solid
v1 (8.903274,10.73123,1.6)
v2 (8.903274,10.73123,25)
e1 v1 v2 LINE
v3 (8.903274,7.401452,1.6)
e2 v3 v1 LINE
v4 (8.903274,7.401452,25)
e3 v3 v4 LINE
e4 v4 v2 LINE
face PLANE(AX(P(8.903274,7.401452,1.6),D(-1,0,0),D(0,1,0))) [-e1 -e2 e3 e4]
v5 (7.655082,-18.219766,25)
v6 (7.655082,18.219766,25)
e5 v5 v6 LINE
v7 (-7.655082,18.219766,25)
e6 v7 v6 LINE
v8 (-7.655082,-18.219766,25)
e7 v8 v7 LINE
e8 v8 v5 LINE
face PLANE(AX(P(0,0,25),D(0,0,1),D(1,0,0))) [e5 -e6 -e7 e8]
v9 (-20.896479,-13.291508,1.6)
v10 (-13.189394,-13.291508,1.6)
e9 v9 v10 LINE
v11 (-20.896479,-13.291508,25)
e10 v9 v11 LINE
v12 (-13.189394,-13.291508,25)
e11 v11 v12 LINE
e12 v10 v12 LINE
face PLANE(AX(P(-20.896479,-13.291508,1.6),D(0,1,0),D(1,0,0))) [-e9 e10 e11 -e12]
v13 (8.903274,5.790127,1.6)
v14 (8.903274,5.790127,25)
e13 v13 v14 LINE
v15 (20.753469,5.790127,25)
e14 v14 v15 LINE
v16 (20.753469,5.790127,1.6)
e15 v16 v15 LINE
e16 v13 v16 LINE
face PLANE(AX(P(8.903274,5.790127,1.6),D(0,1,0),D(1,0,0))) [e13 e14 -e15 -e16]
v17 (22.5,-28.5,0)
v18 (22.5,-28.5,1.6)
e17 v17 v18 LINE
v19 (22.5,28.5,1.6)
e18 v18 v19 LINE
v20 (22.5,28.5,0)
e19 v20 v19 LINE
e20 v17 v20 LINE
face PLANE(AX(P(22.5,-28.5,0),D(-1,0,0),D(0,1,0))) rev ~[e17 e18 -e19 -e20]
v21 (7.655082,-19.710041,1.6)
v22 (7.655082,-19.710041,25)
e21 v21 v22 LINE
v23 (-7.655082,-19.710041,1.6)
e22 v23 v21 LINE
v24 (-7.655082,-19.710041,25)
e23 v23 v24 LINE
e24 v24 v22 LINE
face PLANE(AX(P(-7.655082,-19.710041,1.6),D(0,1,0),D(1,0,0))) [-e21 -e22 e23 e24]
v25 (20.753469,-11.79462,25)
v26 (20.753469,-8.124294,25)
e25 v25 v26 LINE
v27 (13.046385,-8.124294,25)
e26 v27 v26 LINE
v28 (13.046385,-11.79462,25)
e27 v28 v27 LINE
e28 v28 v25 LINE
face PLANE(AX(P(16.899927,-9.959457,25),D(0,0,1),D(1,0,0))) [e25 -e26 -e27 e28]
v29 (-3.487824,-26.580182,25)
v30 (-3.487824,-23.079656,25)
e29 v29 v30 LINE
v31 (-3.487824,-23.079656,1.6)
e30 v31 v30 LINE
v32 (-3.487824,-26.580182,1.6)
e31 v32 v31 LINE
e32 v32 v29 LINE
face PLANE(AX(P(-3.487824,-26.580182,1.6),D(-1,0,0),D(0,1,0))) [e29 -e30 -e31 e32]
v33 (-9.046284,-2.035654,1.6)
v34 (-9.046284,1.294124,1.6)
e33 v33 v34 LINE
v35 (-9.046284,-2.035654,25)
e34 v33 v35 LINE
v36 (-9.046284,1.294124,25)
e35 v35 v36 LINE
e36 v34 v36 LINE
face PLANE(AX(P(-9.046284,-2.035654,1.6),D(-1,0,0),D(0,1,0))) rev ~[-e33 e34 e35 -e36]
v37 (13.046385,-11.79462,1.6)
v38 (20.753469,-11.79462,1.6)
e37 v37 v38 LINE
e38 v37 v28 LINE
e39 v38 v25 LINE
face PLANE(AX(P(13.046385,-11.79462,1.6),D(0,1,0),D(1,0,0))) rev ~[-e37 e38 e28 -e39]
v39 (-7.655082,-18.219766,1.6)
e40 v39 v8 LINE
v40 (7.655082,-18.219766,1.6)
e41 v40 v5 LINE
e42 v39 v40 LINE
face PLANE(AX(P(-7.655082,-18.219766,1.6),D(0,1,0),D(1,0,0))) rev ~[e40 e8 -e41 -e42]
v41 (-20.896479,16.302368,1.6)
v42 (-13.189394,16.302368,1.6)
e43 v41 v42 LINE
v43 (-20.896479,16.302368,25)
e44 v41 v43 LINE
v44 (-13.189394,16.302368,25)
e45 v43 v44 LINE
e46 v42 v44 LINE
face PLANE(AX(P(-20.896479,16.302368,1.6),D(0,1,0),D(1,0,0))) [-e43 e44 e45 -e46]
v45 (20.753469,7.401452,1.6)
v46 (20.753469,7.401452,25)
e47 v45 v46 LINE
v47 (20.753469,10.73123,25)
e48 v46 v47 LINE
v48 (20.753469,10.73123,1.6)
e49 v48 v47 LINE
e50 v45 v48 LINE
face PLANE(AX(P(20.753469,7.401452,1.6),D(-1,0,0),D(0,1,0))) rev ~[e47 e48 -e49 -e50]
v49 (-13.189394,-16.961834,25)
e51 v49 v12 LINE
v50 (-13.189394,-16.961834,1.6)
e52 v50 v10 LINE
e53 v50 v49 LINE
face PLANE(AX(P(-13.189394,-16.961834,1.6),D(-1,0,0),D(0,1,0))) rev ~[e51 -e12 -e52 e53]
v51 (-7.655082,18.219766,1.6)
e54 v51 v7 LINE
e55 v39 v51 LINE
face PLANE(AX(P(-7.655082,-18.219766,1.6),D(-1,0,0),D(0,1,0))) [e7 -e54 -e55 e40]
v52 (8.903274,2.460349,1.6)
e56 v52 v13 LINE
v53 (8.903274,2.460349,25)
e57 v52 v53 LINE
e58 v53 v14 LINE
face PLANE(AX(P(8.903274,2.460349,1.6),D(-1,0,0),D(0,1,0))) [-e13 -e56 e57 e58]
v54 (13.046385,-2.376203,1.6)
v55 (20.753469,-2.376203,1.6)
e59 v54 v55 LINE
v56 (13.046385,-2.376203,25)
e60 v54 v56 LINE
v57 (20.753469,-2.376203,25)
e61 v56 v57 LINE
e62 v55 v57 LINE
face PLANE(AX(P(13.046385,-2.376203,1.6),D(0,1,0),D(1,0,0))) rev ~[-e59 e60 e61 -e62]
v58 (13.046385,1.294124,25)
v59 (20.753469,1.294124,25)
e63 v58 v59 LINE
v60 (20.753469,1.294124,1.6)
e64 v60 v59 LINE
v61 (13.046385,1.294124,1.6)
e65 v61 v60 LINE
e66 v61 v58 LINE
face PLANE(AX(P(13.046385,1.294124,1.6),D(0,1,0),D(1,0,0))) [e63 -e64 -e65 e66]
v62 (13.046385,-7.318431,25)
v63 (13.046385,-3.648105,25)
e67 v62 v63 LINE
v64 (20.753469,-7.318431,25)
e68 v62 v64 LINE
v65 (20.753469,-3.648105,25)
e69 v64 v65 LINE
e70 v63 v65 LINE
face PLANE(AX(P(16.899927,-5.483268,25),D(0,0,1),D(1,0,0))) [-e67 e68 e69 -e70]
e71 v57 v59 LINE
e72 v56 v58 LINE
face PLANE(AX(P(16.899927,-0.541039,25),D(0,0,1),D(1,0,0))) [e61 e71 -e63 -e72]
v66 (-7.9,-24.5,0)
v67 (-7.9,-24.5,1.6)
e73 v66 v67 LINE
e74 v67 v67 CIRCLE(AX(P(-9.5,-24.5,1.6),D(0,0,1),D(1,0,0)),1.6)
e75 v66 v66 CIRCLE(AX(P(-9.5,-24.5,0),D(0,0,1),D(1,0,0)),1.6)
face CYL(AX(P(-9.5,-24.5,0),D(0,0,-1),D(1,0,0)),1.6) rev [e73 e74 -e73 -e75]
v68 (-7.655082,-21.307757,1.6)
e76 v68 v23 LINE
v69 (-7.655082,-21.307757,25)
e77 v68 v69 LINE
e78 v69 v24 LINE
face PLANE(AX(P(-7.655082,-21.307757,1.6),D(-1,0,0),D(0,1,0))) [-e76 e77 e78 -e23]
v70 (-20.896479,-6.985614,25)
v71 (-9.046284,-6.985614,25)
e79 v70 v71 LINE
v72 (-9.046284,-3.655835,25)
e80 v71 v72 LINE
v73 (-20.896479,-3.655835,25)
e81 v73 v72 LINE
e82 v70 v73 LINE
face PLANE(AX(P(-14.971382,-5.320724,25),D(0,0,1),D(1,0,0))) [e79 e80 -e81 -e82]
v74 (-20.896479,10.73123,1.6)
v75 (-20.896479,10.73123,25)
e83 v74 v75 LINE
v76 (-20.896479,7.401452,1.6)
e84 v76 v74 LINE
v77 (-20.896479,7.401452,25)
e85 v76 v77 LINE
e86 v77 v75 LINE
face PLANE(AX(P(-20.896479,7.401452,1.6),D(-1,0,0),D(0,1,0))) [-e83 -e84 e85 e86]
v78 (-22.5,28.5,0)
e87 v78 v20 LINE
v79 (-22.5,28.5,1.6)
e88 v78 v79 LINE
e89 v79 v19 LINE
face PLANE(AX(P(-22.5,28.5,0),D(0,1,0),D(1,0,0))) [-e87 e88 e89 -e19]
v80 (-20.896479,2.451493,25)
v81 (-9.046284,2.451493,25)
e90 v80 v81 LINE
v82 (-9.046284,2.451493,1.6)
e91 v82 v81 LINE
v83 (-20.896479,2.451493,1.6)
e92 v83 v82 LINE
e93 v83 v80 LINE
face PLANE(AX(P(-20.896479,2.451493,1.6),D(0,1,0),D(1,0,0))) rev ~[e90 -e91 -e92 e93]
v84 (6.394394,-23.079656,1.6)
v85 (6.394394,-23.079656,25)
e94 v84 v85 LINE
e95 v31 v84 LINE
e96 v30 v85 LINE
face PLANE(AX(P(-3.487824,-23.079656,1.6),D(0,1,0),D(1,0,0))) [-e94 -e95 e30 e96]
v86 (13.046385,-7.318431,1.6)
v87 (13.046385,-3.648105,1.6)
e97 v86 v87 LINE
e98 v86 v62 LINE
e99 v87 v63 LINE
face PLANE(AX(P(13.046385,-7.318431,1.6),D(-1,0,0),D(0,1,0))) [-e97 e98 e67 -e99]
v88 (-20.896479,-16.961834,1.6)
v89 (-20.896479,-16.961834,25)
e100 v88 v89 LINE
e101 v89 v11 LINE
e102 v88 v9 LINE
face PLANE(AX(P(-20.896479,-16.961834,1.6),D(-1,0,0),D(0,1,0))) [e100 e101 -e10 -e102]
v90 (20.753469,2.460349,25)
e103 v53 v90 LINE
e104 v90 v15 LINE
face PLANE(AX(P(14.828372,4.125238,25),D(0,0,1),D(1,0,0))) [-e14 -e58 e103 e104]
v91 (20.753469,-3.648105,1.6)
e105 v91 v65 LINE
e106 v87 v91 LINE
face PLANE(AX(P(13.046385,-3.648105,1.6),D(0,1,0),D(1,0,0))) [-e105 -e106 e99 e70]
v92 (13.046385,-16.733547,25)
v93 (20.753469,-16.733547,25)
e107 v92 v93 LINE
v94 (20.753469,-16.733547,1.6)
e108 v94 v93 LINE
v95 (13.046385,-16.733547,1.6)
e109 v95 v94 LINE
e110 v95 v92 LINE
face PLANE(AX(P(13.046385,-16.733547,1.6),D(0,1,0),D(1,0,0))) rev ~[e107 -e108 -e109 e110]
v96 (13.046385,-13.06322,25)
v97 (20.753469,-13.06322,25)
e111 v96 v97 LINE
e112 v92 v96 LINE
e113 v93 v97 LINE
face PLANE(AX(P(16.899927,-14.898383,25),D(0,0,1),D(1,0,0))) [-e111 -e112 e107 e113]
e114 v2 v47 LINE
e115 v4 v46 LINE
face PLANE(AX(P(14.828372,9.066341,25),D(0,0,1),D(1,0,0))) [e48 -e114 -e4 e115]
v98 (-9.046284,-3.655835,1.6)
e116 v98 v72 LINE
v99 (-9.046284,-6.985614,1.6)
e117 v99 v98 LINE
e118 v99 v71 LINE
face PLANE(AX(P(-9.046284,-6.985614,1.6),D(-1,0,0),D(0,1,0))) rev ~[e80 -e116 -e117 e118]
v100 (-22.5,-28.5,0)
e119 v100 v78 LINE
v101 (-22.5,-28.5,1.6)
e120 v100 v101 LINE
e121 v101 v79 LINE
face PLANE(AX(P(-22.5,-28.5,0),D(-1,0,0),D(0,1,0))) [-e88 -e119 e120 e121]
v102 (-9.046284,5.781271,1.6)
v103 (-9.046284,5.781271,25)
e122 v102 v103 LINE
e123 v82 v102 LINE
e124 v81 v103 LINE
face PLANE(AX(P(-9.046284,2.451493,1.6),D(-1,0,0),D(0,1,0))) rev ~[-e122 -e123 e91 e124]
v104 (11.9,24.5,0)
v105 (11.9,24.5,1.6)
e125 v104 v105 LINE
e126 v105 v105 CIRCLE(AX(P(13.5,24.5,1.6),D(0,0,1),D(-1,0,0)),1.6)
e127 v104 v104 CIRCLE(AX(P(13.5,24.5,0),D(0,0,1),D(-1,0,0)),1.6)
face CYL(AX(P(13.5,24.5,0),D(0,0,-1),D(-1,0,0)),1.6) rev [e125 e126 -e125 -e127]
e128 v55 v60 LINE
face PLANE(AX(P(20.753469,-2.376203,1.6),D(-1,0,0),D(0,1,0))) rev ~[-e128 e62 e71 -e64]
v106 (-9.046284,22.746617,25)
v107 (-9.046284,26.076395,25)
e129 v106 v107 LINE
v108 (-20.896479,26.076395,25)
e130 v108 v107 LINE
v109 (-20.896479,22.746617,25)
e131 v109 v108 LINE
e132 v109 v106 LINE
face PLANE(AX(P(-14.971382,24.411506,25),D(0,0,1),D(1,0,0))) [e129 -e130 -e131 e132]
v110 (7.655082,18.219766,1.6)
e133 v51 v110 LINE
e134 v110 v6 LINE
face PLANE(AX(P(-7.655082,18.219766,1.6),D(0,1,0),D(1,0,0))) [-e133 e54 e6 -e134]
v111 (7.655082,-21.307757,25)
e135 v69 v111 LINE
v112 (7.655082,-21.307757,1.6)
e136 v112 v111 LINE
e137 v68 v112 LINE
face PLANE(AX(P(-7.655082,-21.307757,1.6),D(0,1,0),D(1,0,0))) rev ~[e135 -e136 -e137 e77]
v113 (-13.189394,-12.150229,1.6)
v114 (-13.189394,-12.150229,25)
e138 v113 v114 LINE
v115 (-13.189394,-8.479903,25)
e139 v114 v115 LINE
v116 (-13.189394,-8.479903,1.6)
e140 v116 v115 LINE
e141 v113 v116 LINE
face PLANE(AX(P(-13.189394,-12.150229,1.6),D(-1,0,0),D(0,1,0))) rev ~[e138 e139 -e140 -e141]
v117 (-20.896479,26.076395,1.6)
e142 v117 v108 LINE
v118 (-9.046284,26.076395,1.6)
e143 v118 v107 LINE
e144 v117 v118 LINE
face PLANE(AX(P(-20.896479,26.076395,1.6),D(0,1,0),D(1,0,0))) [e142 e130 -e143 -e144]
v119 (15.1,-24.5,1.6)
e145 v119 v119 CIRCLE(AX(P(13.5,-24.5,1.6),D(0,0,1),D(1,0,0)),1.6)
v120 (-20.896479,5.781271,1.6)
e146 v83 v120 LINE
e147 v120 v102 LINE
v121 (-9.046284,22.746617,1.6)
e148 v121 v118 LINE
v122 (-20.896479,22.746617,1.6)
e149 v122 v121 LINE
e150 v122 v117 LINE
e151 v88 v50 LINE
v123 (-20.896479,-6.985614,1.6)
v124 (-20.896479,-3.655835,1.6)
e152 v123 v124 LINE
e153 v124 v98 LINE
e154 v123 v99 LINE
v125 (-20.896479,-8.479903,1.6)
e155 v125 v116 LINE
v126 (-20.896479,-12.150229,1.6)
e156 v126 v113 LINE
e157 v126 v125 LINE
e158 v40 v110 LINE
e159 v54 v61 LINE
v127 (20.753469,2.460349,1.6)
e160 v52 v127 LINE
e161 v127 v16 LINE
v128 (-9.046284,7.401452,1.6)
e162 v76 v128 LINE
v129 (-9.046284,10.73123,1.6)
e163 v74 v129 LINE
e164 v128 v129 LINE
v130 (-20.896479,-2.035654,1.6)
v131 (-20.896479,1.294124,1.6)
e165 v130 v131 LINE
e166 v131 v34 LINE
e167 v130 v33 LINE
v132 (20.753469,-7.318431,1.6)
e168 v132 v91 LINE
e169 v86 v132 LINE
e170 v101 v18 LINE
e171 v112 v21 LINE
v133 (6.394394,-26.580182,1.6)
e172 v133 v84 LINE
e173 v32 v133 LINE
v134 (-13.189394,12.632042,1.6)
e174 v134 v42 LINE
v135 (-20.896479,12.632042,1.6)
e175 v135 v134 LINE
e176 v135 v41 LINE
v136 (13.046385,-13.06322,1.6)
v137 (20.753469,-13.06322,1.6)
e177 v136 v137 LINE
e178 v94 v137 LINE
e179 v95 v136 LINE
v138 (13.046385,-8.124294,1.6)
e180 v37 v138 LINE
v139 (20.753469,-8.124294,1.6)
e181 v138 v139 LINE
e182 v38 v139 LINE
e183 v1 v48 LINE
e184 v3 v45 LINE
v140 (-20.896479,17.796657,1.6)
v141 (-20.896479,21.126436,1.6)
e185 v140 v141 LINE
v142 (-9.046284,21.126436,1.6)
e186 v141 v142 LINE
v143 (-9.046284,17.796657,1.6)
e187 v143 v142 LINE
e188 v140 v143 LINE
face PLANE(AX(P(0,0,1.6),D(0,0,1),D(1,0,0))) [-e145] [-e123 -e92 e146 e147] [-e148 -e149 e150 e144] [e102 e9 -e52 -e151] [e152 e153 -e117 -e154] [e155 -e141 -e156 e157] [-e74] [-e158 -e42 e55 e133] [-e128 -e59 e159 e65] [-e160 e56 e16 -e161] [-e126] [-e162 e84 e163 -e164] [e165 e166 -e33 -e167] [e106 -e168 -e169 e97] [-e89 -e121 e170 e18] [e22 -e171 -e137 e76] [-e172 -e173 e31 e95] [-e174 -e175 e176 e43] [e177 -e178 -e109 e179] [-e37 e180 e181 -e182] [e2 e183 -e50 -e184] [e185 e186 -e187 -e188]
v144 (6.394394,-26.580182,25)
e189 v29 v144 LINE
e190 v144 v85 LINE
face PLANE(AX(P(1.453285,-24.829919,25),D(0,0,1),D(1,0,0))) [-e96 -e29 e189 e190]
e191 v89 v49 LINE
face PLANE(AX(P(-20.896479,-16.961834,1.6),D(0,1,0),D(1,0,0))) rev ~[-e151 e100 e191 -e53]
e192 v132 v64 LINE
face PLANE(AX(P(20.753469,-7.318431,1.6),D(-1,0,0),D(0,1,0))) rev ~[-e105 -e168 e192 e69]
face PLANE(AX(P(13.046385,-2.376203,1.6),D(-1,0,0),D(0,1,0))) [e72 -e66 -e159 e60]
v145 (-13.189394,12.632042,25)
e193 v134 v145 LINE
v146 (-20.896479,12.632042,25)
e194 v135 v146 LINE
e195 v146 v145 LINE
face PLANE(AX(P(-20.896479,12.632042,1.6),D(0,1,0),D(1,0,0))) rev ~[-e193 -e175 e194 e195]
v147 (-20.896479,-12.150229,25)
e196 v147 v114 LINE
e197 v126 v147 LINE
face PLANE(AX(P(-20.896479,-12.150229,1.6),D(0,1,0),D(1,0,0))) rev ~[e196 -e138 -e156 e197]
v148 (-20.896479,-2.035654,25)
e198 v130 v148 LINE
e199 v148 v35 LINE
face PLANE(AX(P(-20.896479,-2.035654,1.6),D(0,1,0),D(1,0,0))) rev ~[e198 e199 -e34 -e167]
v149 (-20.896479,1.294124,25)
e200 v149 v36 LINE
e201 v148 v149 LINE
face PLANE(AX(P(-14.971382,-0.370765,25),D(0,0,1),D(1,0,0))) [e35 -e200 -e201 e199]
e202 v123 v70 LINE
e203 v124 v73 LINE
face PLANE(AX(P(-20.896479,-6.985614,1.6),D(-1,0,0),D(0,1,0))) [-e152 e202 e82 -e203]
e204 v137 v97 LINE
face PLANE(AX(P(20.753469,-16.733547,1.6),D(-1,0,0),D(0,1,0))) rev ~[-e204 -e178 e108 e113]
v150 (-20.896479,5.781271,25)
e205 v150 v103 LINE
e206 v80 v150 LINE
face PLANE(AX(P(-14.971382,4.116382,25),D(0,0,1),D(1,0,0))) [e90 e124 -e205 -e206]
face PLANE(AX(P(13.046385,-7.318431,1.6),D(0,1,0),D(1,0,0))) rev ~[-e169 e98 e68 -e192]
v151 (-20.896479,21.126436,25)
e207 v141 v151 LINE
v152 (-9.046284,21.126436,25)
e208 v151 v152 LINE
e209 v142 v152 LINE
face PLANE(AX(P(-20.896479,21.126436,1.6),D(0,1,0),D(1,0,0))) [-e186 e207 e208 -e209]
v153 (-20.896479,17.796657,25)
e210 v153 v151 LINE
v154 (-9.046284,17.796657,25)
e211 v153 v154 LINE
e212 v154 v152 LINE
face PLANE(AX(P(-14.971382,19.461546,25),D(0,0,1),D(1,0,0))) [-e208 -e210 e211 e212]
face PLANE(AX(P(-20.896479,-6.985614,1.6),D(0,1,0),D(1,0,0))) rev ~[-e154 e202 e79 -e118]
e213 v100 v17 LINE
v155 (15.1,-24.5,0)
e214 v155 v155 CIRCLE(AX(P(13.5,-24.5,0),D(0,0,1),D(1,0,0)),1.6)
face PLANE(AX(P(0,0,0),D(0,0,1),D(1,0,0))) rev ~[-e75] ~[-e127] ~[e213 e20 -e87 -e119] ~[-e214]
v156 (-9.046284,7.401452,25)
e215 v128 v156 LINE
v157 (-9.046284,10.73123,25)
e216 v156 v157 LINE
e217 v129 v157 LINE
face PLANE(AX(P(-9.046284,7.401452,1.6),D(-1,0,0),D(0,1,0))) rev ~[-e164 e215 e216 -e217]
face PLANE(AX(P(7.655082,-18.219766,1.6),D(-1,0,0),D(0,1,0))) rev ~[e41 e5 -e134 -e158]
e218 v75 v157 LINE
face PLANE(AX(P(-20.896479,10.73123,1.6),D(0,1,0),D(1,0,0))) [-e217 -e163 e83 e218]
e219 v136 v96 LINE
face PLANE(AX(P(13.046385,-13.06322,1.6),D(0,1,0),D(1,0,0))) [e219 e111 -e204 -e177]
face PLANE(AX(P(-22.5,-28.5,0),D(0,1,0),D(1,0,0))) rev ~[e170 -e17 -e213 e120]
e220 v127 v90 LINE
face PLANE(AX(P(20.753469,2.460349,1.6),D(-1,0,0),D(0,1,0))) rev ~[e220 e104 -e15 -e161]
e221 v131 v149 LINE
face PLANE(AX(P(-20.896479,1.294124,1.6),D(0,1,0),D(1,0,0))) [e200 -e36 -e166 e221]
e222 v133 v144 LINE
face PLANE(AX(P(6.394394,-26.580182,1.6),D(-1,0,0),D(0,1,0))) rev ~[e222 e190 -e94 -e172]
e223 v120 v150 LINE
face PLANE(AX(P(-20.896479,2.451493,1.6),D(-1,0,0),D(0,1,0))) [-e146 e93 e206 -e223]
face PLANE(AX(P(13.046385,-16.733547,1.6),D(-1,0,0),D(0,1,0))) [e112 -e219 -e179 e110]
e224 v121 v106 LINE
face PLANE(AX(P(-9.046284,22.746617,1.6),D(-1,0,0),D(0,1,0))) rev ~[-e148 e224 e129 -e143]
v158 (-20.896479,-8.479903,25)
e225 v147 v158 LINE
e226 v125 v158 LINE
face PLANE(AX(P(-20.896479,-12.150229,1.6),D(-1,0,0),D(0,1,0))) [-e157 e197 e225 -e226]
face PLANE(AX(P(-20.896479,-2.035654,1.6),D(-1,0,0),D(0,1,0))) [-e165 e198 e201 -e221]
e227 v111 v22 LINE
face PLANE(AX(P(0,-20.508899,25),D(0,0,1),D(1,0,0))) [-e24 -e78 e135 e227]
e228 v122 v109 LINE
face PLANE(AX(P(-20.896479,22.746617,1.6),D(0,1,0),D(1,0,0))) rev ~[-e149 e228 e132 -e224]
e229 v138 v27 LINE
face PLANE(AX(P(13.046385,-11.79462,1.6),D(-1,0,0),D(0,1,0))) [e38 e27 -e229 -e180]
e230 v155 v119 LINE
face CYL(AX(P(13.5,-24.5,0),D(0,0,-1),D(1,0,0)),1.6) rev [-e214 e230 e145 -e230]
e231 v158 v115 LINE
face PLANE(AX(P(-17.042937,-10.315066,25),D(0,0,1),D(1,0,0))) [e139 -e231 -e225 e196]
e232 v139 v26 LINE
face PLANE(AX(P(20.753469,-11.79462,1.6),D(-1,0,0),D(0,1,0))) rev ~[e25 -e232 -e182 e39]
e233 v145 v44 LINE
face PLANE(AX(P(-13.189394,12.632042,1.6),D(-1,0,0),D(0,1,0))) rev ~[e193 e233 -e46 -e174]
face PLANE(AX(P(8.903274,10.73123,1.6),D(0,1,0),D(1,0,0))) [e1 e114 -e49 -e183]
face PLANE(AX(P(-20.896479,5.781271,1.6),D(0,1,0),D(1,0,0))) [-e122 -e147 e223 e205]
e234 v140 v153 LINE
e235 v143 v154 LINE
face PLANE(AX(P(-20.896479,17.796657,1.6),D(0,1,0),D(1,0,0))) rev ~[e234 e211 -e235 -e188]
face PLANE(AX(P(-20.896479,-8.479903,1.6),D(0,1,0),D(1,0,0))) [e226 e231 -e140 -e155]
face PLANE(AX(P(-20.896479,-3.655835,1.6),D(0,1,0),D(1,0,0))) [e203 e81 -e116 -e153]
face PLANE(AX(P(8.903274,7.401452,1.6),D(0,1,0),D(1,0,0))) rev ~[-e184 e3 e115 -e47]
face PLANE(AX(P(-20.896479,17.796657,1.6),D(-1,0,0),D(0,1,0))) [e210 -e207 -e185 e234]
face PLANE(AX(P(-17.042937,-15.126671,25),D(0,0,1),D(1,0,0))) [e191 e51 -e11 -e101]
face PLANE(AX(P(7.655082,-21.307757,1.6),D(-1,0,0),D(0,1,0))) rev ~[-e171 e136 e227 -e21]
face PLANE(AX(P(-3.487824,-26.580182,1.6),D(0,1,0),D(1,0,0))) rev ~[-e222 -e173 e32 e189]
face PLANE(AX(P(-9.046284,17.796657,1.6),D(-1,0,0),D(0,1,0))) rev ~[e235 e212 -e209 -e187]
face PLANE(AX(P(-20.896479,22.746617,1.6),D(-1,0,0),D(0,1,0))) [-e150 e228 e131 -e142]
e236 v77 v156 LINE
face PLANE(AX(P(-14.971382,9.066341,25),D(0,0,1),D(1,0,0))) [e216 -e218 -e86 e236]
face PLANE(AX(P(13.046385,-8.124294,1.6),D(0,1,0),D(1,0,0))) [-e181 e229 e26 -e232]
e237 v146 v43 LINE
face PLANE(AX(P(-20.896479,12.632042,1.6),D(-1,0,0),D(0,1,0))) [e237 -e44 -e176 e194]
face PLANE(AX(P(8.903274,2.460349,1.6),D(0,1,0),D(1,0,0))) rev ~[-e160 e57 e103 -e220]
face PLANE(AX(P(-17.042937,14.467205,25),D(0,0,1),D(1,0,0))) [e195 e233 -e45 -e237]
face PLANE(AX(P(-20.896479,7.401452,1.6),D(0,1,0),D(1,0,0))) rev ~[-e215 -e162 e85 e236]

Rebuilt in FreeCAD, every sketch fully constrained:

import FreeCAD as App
import Part
import Sketcher
from FreeCAD import Vector

doc = App.newDocument("Part")
params = doc.addObject("Spreadsheet::Sheet", "Params")
for row, (alias, value) in enumerate([
    ("sketch1_diameter", "3.2 mm"),
    ("sketch1_width", "45 mm"),
    ("sketch1_height", "57 mm"),
    ("pad1_length", "1.6 mm"),
    ("pad2_length", "23.4 mm"),
], start=1):
    params.set(f"A{row}", alias)
    params.set(f"B{row}", "=" + value)
    params.setAlias(f"B{row}", alias)

body = doc.addObject("PartDesign::Body", "Body")

# Sketch on XY plane
sketch1 = body.newObject("Sketcher::SketchObject", "Sketch")
sketch1.AttachmentSupport = (doc.getObject("XY_Plane"), [""])
sketch1.MapMode = "FlatFace"
sketch1.addGeometry(Part.LineSegment(Vector(-22.5, 28.5, 0), Vector(-22.5, -28.5, 0)), False)
sketch1.addGeometry(Part.LineSegment(Vector(-22.5, -28.5, 0), Vector(22.5, -28.5, 0)), False)
sketch1.addGeometry(Part.LineSegment(Vector(22.5, -28.5, 0), Vector(22.5, 28.5, 0)), False)
sketch1.addGeometry(Part.LineSegment(Vector(22.5, 28.5, 0), Vector(-22.5, 28.5, 0)), False)
sketch1.addGeometry(Part.Circle(Vector(-9.5, -24.5, 0), Vector(0, 0, 1), 1.6), False)
sketch1.addGeometry(Part.Circle(Vector(13.5, -24.5, 0), Vector(0, 0, 1), 1.6), False)
sketch1.addGeometry(Part.Circle(Vector(13.5, 24.5, 0), Vector(0, 0, 1), 1.6), False)
sketch1.addConstraint(Sketcher.Constraint("Coincident", 0, 2, 1, 1))
sketch1.addConstraint(Sketcher.Constraint("Coincident", 1, 2, 2, 1))
sketch1.addConstraint(Sketcher.Constraint("Coincident", 2, 2, 3, 1))
sketch1.addConstraint(Sketcher.Constraint("Coincident", 3, 2, 0, 1))
sketch1.addConstraint(Sketcher.Constraint("Vertical", 0))
sketch1.addConstraint(Sketcher.Constraint("Horizontal", 1))
sketch1.addConstraint(Sketcher.Constraint("Vertical", 2))
sketch1.addConstraint(Sketcher.Constraint("Horizontal", 3))
sketch1.addConstraint(Sketcher.Constraint("Equal", 4, 5))
sketch1.addConstraint(Sketcher.Constraint("Equal", 5, 6))
sketch1.addConstraint(Sketcher.Constraint("Symmetric", 0, 2, 2, 2, -1, 1))
sketch1.addConstraint(Sketcher.Constraint("Symmetric", 5, 3, 6, 3, -1))
sketch1.addConstraint(Sketcher.Constraint("Horizontal", 4, 3, 5, 3))
sketch1.addConstraint(Sketcher.Constraint("Diameter", 4, 3.2))
sketch1.addConstraint(Sketcher.Constraint("DistanceX", 1, 1, 1, 2, 45.0))
sketch1.addConstraint(Sketcher.Constraint("DistanceY", 0, 2, 0, 1, 57.0))
sketch1.addConstraint(Sketcher.Constraint("DistanceX", 4, 3, 5, 3, 23.0))
sketch1.addConstraint(Sketcher.Constraint("DistanceY", 5, 3, 6, 3, 49.0))
sketch1.addConstraint(Sketcher.Constraint("DistanceX", 0, 2, 4, 3, 13.0))
sketch1.setExpression("Constraints[13]", "Params.sketch1_diameter")
sketch1.setExpression("Constraints[14]", "Params.sketch1_width")
sketch1.setExpression("Constraints[15]", "Params.sketch1_height")
pad1 = body.newObject("PartDesign::Pad", "Pad")
pad1.Profile = sketch1
pad1.setExpression("Length", "Params.pad1_length")

# Sketch on XY plane
sketch2 = body.newObject("Sketcher::SketchObject", "Sketch001")
sketch2.AttachmentSupport = (doc.getObject("XY_Plane"), [""])
sketch2.MapMode = "FlatFace"
sketch2.AttachmentOffset = App.Placement(Vector(0, 0, 1.6), App.Rotation())
sketch2.addGeometry(Part.LineSegment(Vector(8.9, 5.8, 0), Vector(8.9, 2.5, 0)), False)
sketch2.addGeometry(Part.LineSegment(Vector(8.9, 2.5, 0), Vector(20.8, 2.5, 0)), False)
sketch2.addGeometry(Part.LineSegment(Vector(20.8, 2.5, 0), Vector(20.8, 5.8, 0)), False)
sketch2.addGeometry(Part.LineSegment(Vector(20.8, 5.8, 0), Vector(8.9, 5.8, 0)), False)
sketch2.addGeometry(Part.LineSegment(Vector(-7.7, 18.2, 0), Vector(-7.7, -18.2, 0)), False)
sketch2.addGeometry(Part.LineSegment(Vector(-7.7, -18.2, 0), Vector(7.7, -18.2, 0)), False)
sketch2.addGeometry(Part.LineSegment(Vector(7.7, -18.2, 0), Vector(7.7, 18.2, 0)), False)
sketch2.addGeometry(Part.LineSegment(Vector(7.7, 18.2, 0), Vector(-7.7, 18.2, 0)), False)
sketch2.addGeometry(Part.LineSegment(Vector(-7.7, -19.7, 0), Vector(-7.7, -21.3, 0)), False)
sketch2.addGeometry(Part.LineSegment(Vector(-7.7, -21.3, 0), Vector(7.7, -21.3, 0)), False)
sketch2.addGeometry(Part.LineSegment(Vector(7.7, -21.3, 0), Vector(7.7, -19.7, 0)), False)
sketch2.addGeometry(Part.LineSegment(Vector(7.7, -19.7, 0), Vector(-7.7, -19.7, 0)), False)
sketch2.addGeometry(Part.LineSegment(Vector(8.9, 10.7, 0), Vector(8.9, 7.4, 0)), False)
sketch2.addGeometry(Part.LineSegment(Vector(8.9, 7.4, 0), Vector(20.8, 7.4, 0)), False)
sketch2.addGeometry(Part.LineSegment(Vector(20.8, 7.4, 0), Vector(20.8, 10.7, 0)), False)
sketch2.addGeometry(Part.LineSegment(Vector(20.8, 10.7, 0), Vector(8.9, 10.7, 0)), False)
sketch2.addGeometry(Part.LineSegment(Vector(-3.5, -23.1, 0), Vector(-3.5, -26.6, 0)), False)
sketch2.addGeometry(Part.LineSegment(Vector(-3.5, -26.6, 0), Vector(6.4, -26.6, 0)), False)
sketch2.addGeometry(Part.LineSegment(Vector(6.4, -26.6, 0), Vector(6.4, -23.1, 0)), False)
sketch2.addGeometry(Part.LineSegment(Vector(6.4, -23.1, 0), Vector(-3.5, -23.1, 0)), False)
sketch2.addGeometry(Part.LineSegment(Vector(13, 1.3, 0), Vector(13, -2.4, 0)), False)
sketch2.addGeometry(Part.LineSegment(Vector(13, -2.4, 0), Vector(20.8, -2.4, 0)), False)
sketch2.addGeometry(Part.LineSegment(Vector(20.8, -2.4, 0), Vector(20.8, 1.3, 0)), False)
sketch2.addGeometry(Part.LineSegment(Vector(20.8, 1.3, 0), Vector(13, 1.3, 0)), False)
sketch2.addGeometry(Part.LineSegment(Vector(13, -3.6, 0), Vector(13, -7.3, 0)), False)
sketch2.addGeometry(Part.LineSegment(Vector(13, -7.3, 0), Vector(20.8, -7.3, 0)), False)
sketch2.addGeometry(Part.LineSegment(Vector(20.8, -7.3, 0), Vector(20.8, -3.6, 0)), False)
sketch2.addGeometry(Part.LineSegment(Vector(20.8, -3.6, 0), Vector(13, -3.6, 0)), False)
sketch2.addGeometry(Part.LineSegment(Vector(13, -8.1, 0), Vector(13, -11.8, 0)), False)
sketch2.addGeometry(Part.LineSegment(Vector(13, -11.8, 0), Vector(20.8, -11.8, 0)), False)
sketch2.addGeometry(Part.LineSegment(Vector(20.8, -11.8, 0), Vector(20.8, -8.1, 0)), False)
sketch2.addGeometry(Part.LineSegment(Vector(20.8, -8.1, 0), Vector(13, -8.1, 0)), False)
sketch2.addGeometry(Part.LineSegment(Vector(13, -13.1, 0), Vector(13, -16.7, 0)), False)
sketch2.addGeometry(Part.LineSegment(Vector(13, -16.7, 0), Vector(20.8, -16.7, 0)), False)
sketch2.addGeometry(Part.LineSegment(Vector(20.8, -16.7, 0), Vector(20.8, -13.1, 0)), False)
sketch2.addGeometry(Part.LineSegment(Vector(20.8, -13.1, 0), Vector(13, -13.1, 0)), False)
sketch2.addGeometry(Part.LineSegment(Vector(-20.9, 26.1, 0), Vector(-20.9, 22.7, 0)), False)
sketch2.addGeometry(Part.LineSegment(Vector(-20.9, 22.7, 0), Vector(-9, 22.7, 0)), False)
sketch2.addGeometry(Part.LineSegment(Vector(-9, 22.7, 0), Vector(-9, 26.1, 0)), False)
sketch2.addGeometry(Part.LineSegment(Vector(-9, 26.1, 0), Vector(-20.9, 26.1, 0)), False)
sketch2.addGeometry(Part.LineSegment(Vector(-20.9, 16.3, 0), Vector(-20.9, 12.6, 0)), False)
sketch2.addGeometry(Part.LineSegment(Vector(-20.9, 12.6, 0), Vector(-13.2, 12.6, 0)), False)
sketch2.addGeometry(Part.LineSegment(Vector(-13.2, 12.6, 0), Vector(-13.2, 16.3, 0)), False)
sketch2.addGeometry(Part.LineSegment(Vector(-13.2, 16.3, 0), Vector(-20.9, 16.3, 0)), False)
sketch2.addGeometry(Part.LineSegment(Vector(-20.9, 21.1, 0), Vector(-20.9, 17.8, 0)), False)
sketch2.addGeometry(Part.LineSegment(Vector(-20.9, 17.8, 0), Vector(-9, 17.8, 0)), False)
sketch2.addGeometry(Part.LineSegment(Vector(-9, 17.8, 0), Vector(-9, 21.1, 0)), False)
sketch2.addGeometry(Part.LineSegment(Vector(-9, 21.1, 0), Vector(-20.9, 21.1, 0)), False)
sketch2.addGeometry(Part.LineSegment(Vector(-20.9, 10.7, 0), Vector(-20.9, 7.4, 0)), False)
sketch2.addGeometry(Part.LineSegment(Vector(-20.9, 7.4, 0), Vector(-9, 7.4, 0)), False)
sketch2.addGeometry(Part.LineSegment(Vector(-9, 7.4, 0), Vector(-9, 10.7, 0)), False)
sketch2.addGeometry(Part.LineSegment(Vector(-9, 10.7, 0), Vector(-20.9, 10.7, 0)), False)
sketch2.addGeometry(Part.LineSegment(Vector(-20.9, 5.8, 0), Vector(-20.9, 2.5, 0)), False)
sketch2.addGeometry(Part.LineSegment(Vector(-20.9, 2.5, 0), Vector(-9, 2.5, 0)), False)
sketch2.addGeometry(Part.LineSegment(Vector(-9, 2.5, 0), Vector(-9, 5.8, 0)), False)
sketch2.addGeometry(Part.LineSegment(Vector(-9, 5.8, 0), Vector(-20.9, 5.8, 0)), False)
sketch2.addGeometry(Part.LineSegment(Vector(-20.9, 1.3, 0), Vector(-20.9, -2, 0)), False)
sketch2.addGeometry(Part.LineSegment(Vector(-20.9, -2, 0), Vector(-9, -2, 0)), False)
sketch2.addGeometry(Part.LineSegment(Vector(-9, -2, 0), Vector(-9, 1.3, 0)), False)
sketch2.addGeometry(Part.LineSegment(Vector(-9, 1.3, 0), Vector(-20.9, 1.3, 0)), False)
sketch2.addGeometry(Part.LineSegment(Vector(-20.9, -3.7, 0), Vector(-20.9, -7, 0)), False)
sketch2.addGeometry(Part.LineSegment(Vector(-20.9, -7, 0), Vector(-9, -7, 0)), False)
sketch2.addGeometry(Part.LineSegment(Vector(-9, -7, 0), Vector(-9, -3.7, 0)), False)
sketch2.addGeometry(Part.LineSegment(Vector(-9, -3.7, 0), Vector(-20.9, -3.7, 0)), False)
sketch2.addGeometry(Part.LineSegment(Vector(-20.9, -8.5, 0), Vector(-20.9, -12.2, 0)), False)
sketch2.addGeometry(Part.LineSegment(Vector(-20.9, -12.2, 0), Vector(-13.2, -12.2, 0)), False)
sketch2.addGeometry(Part.LineSegment(Vector(-13.2, -12.2, 0), Vector(-13.2, -8.5, 0)), False)
sketch2.addGeometry(Part.LineSegment(Vector(-13.2, -8.5, 0), Vector(-20.9, -8.5, 0)), False)
sketch2.addGeometry(Part.LineSegment(Vector(-20.9, -13.3, 0), Vector(-20.9, -17, 0)), False)
sketch2.addGeometry(Part.LineSegment(Vector(-20.9, -17, 0), Vector(-13.2, -17, 0)), False)
sketch2.addGeometry(Part.LineSegment(Vector(-13.2, -17, 0), Vector(-13.2, -13.3, 0)), False)
sketch2.addGeometry(Part.LineSegment(Vector(-13.2, -13.3, 0), Vector(-20.9, -13.3, 0)), False)
sketch2.addConstraint(Sketcher.Constraint("Coincident", 0, 2, 1, 1))
sketch2.addConstraint(Sketcher.Constraint("Coincident", 1, 2, 2, 1))
sketch2.addConstraint(Sketcher.Constraint("Coincident", 2, 2, 3, 1))
sketch2.addConstraint(Sketcher.Constraint("Coincident", 3, 2, 0, 1))
sketch2.addConstraint(Sketcher.Constraint("Coincident", 4, 2, 5, 1))
sketch2.addConstraint(Sketcher.Constraint("Coincident", 5, 2, 6, 1))
sketch2.addConstraint(Sketcher.Constraint("Coincident", 6, 2, 7, 1))
sketch2.addConstraint(Sketcher.Constraint("Coincident", 7, 2, 4, 1))
sketch2.addConstraint(Sketcher.Constraint("Coincident", 8, 2, 9, 1))
sketch2.addConstraint(Sketcher.Constraint("Coincident", 9, 2, 10, 1))
sketch2.addConstraint(Sketcher.Constraint("Coincident", 10, 2, 11, 1))
sketch2.addConstraint(Sketcher.Constraint("Coincident", 11, 2, 8, 1))
sketch2.addConstraint(Sketcher.Constraint("Coincident", 12, 2, 13, 1))
sketch2.addConstraint(Sketcher.Constraint("Coincident", 13, 2, 14, 1))
sketch2.addConstraint(Sketcher.Constraint("Coincident", 14, 2, 15, 1))
sketch2.addConstraint(Sketcher.Constraint("Coincident", 15, 2, 12, 1))
sketch2.addConstraint(Sketcher.Constraint("Coincident", 16, 2, 17, 1))
sketch2.addConstraint(Sketcher.Constraint("Coincident", 17, 2, 18, 1))
sketch2.addConstraint(Sketcher.Constraint("Coincident", 18, 2, 19, 1))
sketch2.addConstraint(Sketcher.Constraint("Coincident", 19, 2, 16, 1))
sketch2.addConstraint(Sketcher.Constraint("Coincident", 20, 2, 21, 1))
sketch2.addConstraint(Sketcher.Constraint("Coincident", 21, 2, 22, 1))
sketch2.addConstraint(Sketcher.Constraint("Coincident", 22, 2, 23, 1))
sketch2.addConstraint(Sketcher.Constraint("Coincident", 23, 2, 20, 1))
sketch2.addConstraint(Sketcher.Constraint("Coincident", 24, 2, 25, 1))
sketch2.addConstraint(Sketcher.Constraint("Coincident", 25, 2, 26, 1))
sketch2.addConstraint(Sketcher.Constraint("Coincident", 26, 2, 27, 1))
sketch2.addConstraint(Sketcher.Constraint("Coincident", 27, 2, 24, 1))
sketch2.addConstraint(Sketcher.Constraint("Coincident", 28, 2, 29, 1))
sketch2.addConstraint(Sketcher.Constraint("Coincident", 29, 2, 30, 1))
sketch2.addConstraint(Sketcher.Constraint("Coincident", 30, 2, 31, 1))
sketch2.addConstraint(Sketcher.Constraint("Coincident", 31, 2, 28, 1))
sketch2.addConstraint(Sketcher.Constraint("Coincident", 32, 2, 33, 1))
sketch2.addConstraint(Sketcher.Constraint("Coincident", 33, 2, 34, 1))
sketch2.addConstraint(Sketcher.Constraint("Coincident", 34, 2, 35, 1))
sketch2.addConstraint(Sketcher.Constraint("Coincident", 35, 2, 32, 1))
sketch2.addConstraint(Sketcher.Constraint("Coincident", 36, 2, 37, 1))
sketch2.addConstraint(Sketcher.Constraint("Coincident", 37, 2, 38, 1))
sketch2.addConstraint(Sketcher.Constraint("Coincident", 38, 2, 39, 1))
sketch2.addConstraint(Sketcher.Constraint("Coincident", 39, 2, 36, 1))
sketch2.addConstraint(Sketcher.Constraint("Coincident", 40, 2, 41, 1))
sketch2.addConstraint(Sketcher.Constraint("Coincident", 41, 2, 42, 1))
sketch2.addConstraint(Sketcher.Constraint("Coincident", 42, 2, 43, 1))
sketch2.addConstraint(Sketcher.Constraint("Coincident", 43, 2, 40, 1))
sketch2.addConstraint(Sketcher.Constraint("Coincident", 44, 2, 45, 1))
sketch2.addConstraint(Sketcher.Constraint("Coincident", 45, 2, 46, 1))
sketch2.addConstraint(Sketcher.Constraint("Coincident", 46, 2, 47, 1))
sketch2.addConstraint(Sketcher.Constraint("Coincident", 47, 2, 44, 1))
sketch2.addConstraint(Sketcher.Constraint("Coincident", 48, 2, 49, 1))
sketch2.addConstraint(Sketcher.Constraint("Coincident", 49, 2, 50, 1))
sketch2.addConstraint(Sketcher.Constraint("Coincident", 50, 2, 51, 1))
sketch2.addConstraint(Sketcher.Constraint("Coincident", 51, 2, 48, 1))
sketch2.addConstraint(Sketcher.Constraint("Coincident", 52, 2, 53, 1))
sketch2.addConstraint(Sketcher.Constraint("Coincident", 53, 2, 54, 1))
sketch2.addConstraint(Sketcher.Constraint("Coincident", 54, 2, 55, 1))
sketch2.addConstraint(Sketcher.Constraint("Coincident", 55, 2, 52, 1))
sketch2.addConstraint(Sketcher.Constraint("Coincident", 56, 2, 57, 1))
sketch2.addConstraint(Sketcher.Constraint("Coincident", 57, 2, 58, 1))
sketch2.addConstraint(Sketcher.Constraint("Coincident", 58, 2, 59, 1))
sketch2.addConstraint(Sketcher.Constraint("Coincident", 59, 2, 56, 1))
sketch2.addConstraint(Sketcher.Constraint("Coincident", 60, 2, 61, 1))
sketch2.addConstraint(Sketcher.Constraint("Coincident", 61, 2, 62, 1))
sketch2.addConstraint(Sketcher.Constraint("Coincident", 62, 2, 63, 1))
sketch2.addConstraint(Sketcher.Constraint("Coincident", 63, 2, 60, 1))
sketch2.addConstraint(Sketcher.Constraint("Coincident", 64, 2, 65, 1))
sketch2.addConstraint(Sketcher.Constraint("Coincident", 65, 2, 66, 1))
sketch2.addConstraint(Sketcher.Constraint("Coincident", 66, 2, 67, 1))
sketch2.addConstraint(Sketcher.Constraint("Coincident", 67, 2, 64, 1))
sketch2.addConstraint(Sketcher.Constraint("Coincident", 68, 2, 69, 1))
sketch2.addConstraint(Sketcher.Constraint("Coincident", 69, 2, 70, 1))
sketch2.addConstraint(Sketcher.Constraint("Coincident", 70, 2, 71, 1))
sketch2.addConstraint(Sketcher.Constraint("Coincident", 71, 2, 68, 1))
sketch2.addConstraint(Sketcher.Constraint("Vertical", 0))
sketch2.addConstraint(Sketcher.Constraint("Horizontal", 1))
sketch2.addConstraint(Sketcher.Constraint("Vertical", 2))
sketch2.addConstraint(Sketcher.Constraint("Horizontal", 3))
sketch2.addConstraint(Sketcher.Constraint("Vertical", 4))
sketch2.addConstraint(Sketcher.Constraint("Horizontal", 5))
sketch2.addConstraint(Sketcher.Constraint("Vertical", 6))
sketch2.addConstraint(Sketcher.Constraint("Horizontal", 7))
sketch2.addConstraint(Sketcher.Constraint("Vertical", 8))
sketch2.addConstraint(Sketcher.Constraint("Horizontal", 9))
sketch2.addConstraint(Sketcher.Constraint("Vertical", 10))
sketch2.addConstraint(Sketcher.Constraint("Horizontal", 11))
sketch2.addConstraint(Sketcher.Constraint("Vertical", 12))
sketch2.addConstraint(Sketcher.Constraint("Horizontal", 13))
sketch2.addConstraint(Sketcher.Constraint("Vertical", 14))
sketch2.addConstraint(Sketcher.Constraint("Horizontal", 15))
sketch2.addConstraint(Sketcher.Constraint("Vertical", 16))
sketch2.addConstraint(Sketcher.Constraint("Horizontal", 17))
sketch2.addConstraint(Sketcher.Constraint("Vertical", 18))
sketch2.addConstraint(Sketcher.Constraint("Horizontal", 19))
sketch2.addConstraint(Sketcher.Constraint("Vertical", 20))
sketch2.addConstraint(Sketcher.Constraint("Horizontal", 21))
sketch2.addConstraint(Sketcher.Constraint("Vertical", 22))
sketch2.addConstraint(Sketcher.Constraint("Horizontal", 23))
sketch2.addConstraint(Sketcher.Constraint("Vertical", 24))
sketch2.addConstraint(Sketcher.Constraint("Horizontal", 25))
sketch2.addConstraint(Sketcher.Constraint("Vertical", 26))
sketch2.addConstraint(Sketcher.Constraint("Horizontal", 27))
sketch2.addConstraint(Sketcher.Constraint("Vertical", 28))
sketch2.addConstraint(Sketcher.Constraint("Horizontal", 29))
sketch2.addConstraint(Sketcher.Constraint("Vertical", 30))
sketch2.addConstraint(Sketcher.Constraint("Horizontal", 31))
sketch2.addConstraint(Sketcher.Constraint("Vertical", 32))
sketch2.addConstraint(Sketcher.Constraint("Horizontal", 33))
sketch2.addConstraint(Sketcher.Constraint("Vertical", 34))
sketch2.addConstraint(Sketcher.Constraint("Horizontal", 35))
sketch2.addConstraint(Sketcher.Constraint("Vertical", 36))
sketch2.addConstraint(Sketcher.Constraint("Horizontal", 37))
sketch2.addConstraint(Sketcher.Constraint("Vertical", 38))
sketch2.addConstraint(Sketcher.Constraint("Horizontal", 39))
sketch2.addConstraint(Sketcher.Constraint("Vertical", 40))
sketch2.addConstraint(Sketcher.Constraint("Horizontal", 41))
sketch2.addConstraint(Sketcher.Constraint("Vertical", 42))
sketch2.addConstraint(Sketcher.Constraint("Horizontal", 43))
sketch2.addConstraint(Sketcher.Constraint("Vertical", 44))
sketch2.addConstraint(Sketcher.Constraint("Horizontal", 45))
sketch2.addConstraint(Sketcher.Constraint("Vertical", 46))
sketch2.addConstraint(Sketcher.Constraint("Horizontal", 47))
sketch2.addConstraint(Sketcher.Constraint("Vertical", 48))
sketch2.addConstraint(Sketcher.Constraint("Horizontal", 49))
sketch2.addConstraint(Sketcher.Constraint("Vertical", 50))
sketch2.addConstraint(Sketcher.Constraint("Horizontal", 51))
sketch2.addConstraint(Sketcher.Constraint("Vertical", 52))
sketch2.addConstraint(Sketcher.Constraint("Horizontal", 53))
sketch2.addConstraint(Sketcher.Constraint("Vertical", 54))
sketch2.addConstraint(Sketcher.Constraint("Horizontal", 55))
sketch2.addConstraint(Sketcher.Constraint("Vertical", 56))
sketch2.addConstraint(Sketcher.Constraint("Horizontal", 57))
sketch2.addConstraint(Sketcher.Constraint("Vertical", 58))
sketch2.addConstraint(Sketcher.Constraint("Horizontal", 59))
sketch2.addConstraint(Sketcher.Constraint("Vertical", 60))
sketch2.addConstraint(Sketcher.Constraint("Horizontal", 61))
sketch2.addConstraint(Sketcher.Constraint("Vertical", 62))
sketch2.addConstraint(Sketcher.Constraint("Horizontal", 63))
sketch2.addConstraint(Sketcher.Constraint("Vertical", 64))
sketch2.addConstraint(Sketcher.Constraint("Horizontal", 65))
sketch2.addConstraint(Sketcher.Constraint("Vertical", 66))
sketch2.addConstraint(Sketcher.Constraint("Horizontal", 67))
sketch2.addConstraint(Sketcher.Constraint("Vertical", 68))
sketch2.addConstraint(Sketcher.Constraint("Horizontal", 69))
sketch2.addConstraint(Sketcher.Constraint("Vertical", 70))
sketch2.addConstraint(Sketcher.Constraint("Horizontal", 71))
sketch2.addConstraint(Sketcher.Constraint("Symmetric", 4, 2, 6, 2, -1, 1))
sketch2.addConstraint(Sketcher.Constraint("Horizontal", 13, 2, 48, 2))
sketch2.addConstraint(Sketcher.Constraint("Horizontal", 15, 2, 50, 2))
sketch2.addConstraint(Sketcher.Constraint("Horizontal", 23, 2, 58, 2))
sketch2.addConstraint(Sketcher.Constraint("Vertical", 7, 2, 8, 2))
sketch2.addConstraint(Sketcher.Constraint("Vertical", 6, 2, 9, 2))
sketch2.addConstraint(Sketcher.Constraint("Vertical", 3, 2, 12, 2))
sketch2.addConstraint(Sketcher.Constraint("Vertical", 2, 2, 13, 2))
sketch2.addConstraint(Sketcher.Constraint("Vertical", 14, 2, 21, 2))
sketch2.addConstraint(Sketcher.Constraint("Vertical", 23, 2, 24, 2))
sketch2.addConstraint(Sketcher.Constraint("Vertical", 22, 2, 25, 2))
sketch2.addConstraint(Sketcher.Constraint("Vertical", 27, 2, 28, 2))
sketch2.addConstraint(Sketcher.Constraint("Vertical", 26, 2, 29, 2))
sketch2.addConstraint(Sketcher.Constraint("Vertical", 31, 2, 32, 2))
sketch2.addConstraint(Sketcher.Constraint("Vertical", 30, 2, 33, 2))
sketch2.addConstraint(Sketcher.Constraint("Vertical", 39, 2, 40, 2))
sketch2.addConstraint(Sketcher.Constraint("Vertical", 43, 2, 44, 2))
sketch2.addConstraint(Sketcher.Constraint("Vertical", 38, 2, 45, 2))
sketch2.addConstraint(Sketcher.Constraint("Vertical", 47, 2, 48, 2))
sketch2.addConstraint(Sketcher.Constraint("Vertical", 46, 2, 49, 2))
sketch2.addConstraint(Sketcher.Constraint("Vertical", 51, 2, 52, 2))
sketch2.addConstraint(Sketcher.Constraint("Vertical", 50, 2, 53, 2))
sketch2.addConstraint(Sketcher.Constraint("Vertical", 55, 2, 56, 2))
sketch2.addConstraint(Sketcher.Constraint("Vertical", 54, 2, 57, 2))
sketch2.addConstraint(Sketcher.Constraint("Vertical", 59, 2, 60, 2))
sketch2.addConstraint(Sketcher.Constraint("Vertical", 58, 2, 61, 2))
sketch2.addConstraint(Sketcher.Constraint("Vertical", 63, 2, 64, 2))
sketch2.addConstraint(Sketcher.Constraint("Vertical", 42, 2, 65, 2))
sketch2.addConstraint(Sketcher.Constraint("Vertical", 67, 2, 68, 2))
sketch2.addConstraint(Sketcher.Constraint("Vertical", 66, 2, 69, 2))
sketch2.addConstraint(Sketcher.Constraint("Equal", 15, 37))
sketch2.addConstraint(Sketcher.Constraint("Equal", 35, 41))
sketch2.addConstraint(Sketcher.Constraint("Equal", 2, 12))
sketch2.addConstraint(Sketcher.Constraint("Equal", 22, 24))
sketch2.addConstraint(Sketcher.Constraint("Equal", 26, 28))
sketch2.addConstraint(Sketcher.Constraint("Equal", 30, 32))
sketch2.addConstraint(Sketcher.Constraint("Equal", 14, 36))
sketch2.addConstraint(Sketcher.Constraint("Equal", 34, 40))
sketch2.addConstraint(Sketcher.Constraint("Equal", 38, 44))
sketch2.addConstraint(Sketcher.Constraint("Equal", 50, 52))
sketch2.addConstraint(Sketcher.Constraint("Equal", 54, 56))
sketch2.addConstraint(Sketcher.Constraint("Equal", 58, 60))
sketch2.addConstraint(Sketcher.Constraint("Equal", 42, 64))
sketch2.addConstraint(Sketcher.Constraint("Equal", 66, 68))
sketch2.addConstraint(Sketcher.Constraint("DistanceX", 17, 1, 17, 2, 9.882218))
sketch2.addConstraint(Sketcher.Constraint("DistanceY", 0, 2, 0, 1, 3.329778))
sketch2.addConstraint(Sketcher.Constraint("DistanceY", 4, 2, 4, 1, 36.439532))
sketch2.addConstraint(Sketcher.Constraint("DistanceX", 1, 1, 1, 2, 11.850195))
sketch2.addConstraint(Sketcher.Constraint("DistanceX", 5, 1, 5, 2, 15.310163))
sketch2.addConstraint(Sketcher.Constraint("DistanceX", 21, 1, 21, 2, 7.707085))
sketch2.addConstraint(Sketcher.Constraint("DistanceY", 8, 2, 8, 1, 1.597715))
sketch2.addConstraint(Sketcher.Constraint("DistanceY", 16, 2, 16, 1, 3.500525))
sketch2.addConstraint(Sketcher.Constraint("DistanceY", 20, 2, 20, 1, 3.670326))
sketch2.addConstraint(Sketcher.Constraint("DistanceY", -1, 1, 0, 2, 2.460349))
sketch2.addConstraint(Sketcher.Constraint("DistanceX", -1, 1, 1, 2, 20.753469))
sketch2.addConstraint(Sketcher.Constraint("DistanceY", 10, 2, -1, 1, 19.710041))
sketch2.addConstraint(Sketcher.Constraint("DistanceY", -1, 1, 14, 2, 10.73123))
sketch2.addConstraint(Sketcher.Constraint("DistanceY", 16, 2, -1, 1, 26.580182))
sketch2.addConstraint(Sketcher.Constraint("DistanceY", 24, 2, -1, 1, 7.318431))
sketch2.addConstraint(Sketcher.Constraint("DistanceY", 28, 2, -1, 1, 11.79462))
sketch2.addConstraint(Sketcher.Constraint("DistanceY", 34, 2, -1, 1, 13.06322))
sketch2.addConstraint(Sketcher.Constraint("DistanceX", 36, 2, -1, 1, 20.896479))
sketch2.addConstraint(Sketcher.Constraint("DistanceY", -1, 1, 40, 2, 12.632042))
sketch2.addConstraint(Sketcher.Constraint("DistanceY", -1, 1, 54, 2, 5.781271))
sketch2.addConstraint(Sketcher.Constraint("DistanceY", 64, 2, -1, 1, 12.150229))
sketch2.addConstraint(Sketcher.Constraint("DistanceX", 16, 2, -1, 1, 3.487824))
sketch2.addConstraint(Sketcher.Constraint("DistanceY", 20, 2, -1, 1, 2.376203))
sketch2.addConstraint(Sketcher.Constraint("DistanceY", -1, 1, 36, 2, 22.746617))
sketch2.addConstraint(Sketcher.Constraint("DistanceY", -1, 1, 44, 2, 17.796657))
sketch2.addConstraint(Sketcher.Constraint("DistanceY", 60, 2, -1, 1, 6.985614))
sketch2.addConstraint(Sketcher.Constraint("DistanceY", 68, 2, -1, 1, 16.961834))
pad2 = body.newObject("PartDesign::Pad", "Pad001")
pad2.Profile = sketch2
pad2.setExpression("Length", "Params.pad2_length")

doc.recompute()
